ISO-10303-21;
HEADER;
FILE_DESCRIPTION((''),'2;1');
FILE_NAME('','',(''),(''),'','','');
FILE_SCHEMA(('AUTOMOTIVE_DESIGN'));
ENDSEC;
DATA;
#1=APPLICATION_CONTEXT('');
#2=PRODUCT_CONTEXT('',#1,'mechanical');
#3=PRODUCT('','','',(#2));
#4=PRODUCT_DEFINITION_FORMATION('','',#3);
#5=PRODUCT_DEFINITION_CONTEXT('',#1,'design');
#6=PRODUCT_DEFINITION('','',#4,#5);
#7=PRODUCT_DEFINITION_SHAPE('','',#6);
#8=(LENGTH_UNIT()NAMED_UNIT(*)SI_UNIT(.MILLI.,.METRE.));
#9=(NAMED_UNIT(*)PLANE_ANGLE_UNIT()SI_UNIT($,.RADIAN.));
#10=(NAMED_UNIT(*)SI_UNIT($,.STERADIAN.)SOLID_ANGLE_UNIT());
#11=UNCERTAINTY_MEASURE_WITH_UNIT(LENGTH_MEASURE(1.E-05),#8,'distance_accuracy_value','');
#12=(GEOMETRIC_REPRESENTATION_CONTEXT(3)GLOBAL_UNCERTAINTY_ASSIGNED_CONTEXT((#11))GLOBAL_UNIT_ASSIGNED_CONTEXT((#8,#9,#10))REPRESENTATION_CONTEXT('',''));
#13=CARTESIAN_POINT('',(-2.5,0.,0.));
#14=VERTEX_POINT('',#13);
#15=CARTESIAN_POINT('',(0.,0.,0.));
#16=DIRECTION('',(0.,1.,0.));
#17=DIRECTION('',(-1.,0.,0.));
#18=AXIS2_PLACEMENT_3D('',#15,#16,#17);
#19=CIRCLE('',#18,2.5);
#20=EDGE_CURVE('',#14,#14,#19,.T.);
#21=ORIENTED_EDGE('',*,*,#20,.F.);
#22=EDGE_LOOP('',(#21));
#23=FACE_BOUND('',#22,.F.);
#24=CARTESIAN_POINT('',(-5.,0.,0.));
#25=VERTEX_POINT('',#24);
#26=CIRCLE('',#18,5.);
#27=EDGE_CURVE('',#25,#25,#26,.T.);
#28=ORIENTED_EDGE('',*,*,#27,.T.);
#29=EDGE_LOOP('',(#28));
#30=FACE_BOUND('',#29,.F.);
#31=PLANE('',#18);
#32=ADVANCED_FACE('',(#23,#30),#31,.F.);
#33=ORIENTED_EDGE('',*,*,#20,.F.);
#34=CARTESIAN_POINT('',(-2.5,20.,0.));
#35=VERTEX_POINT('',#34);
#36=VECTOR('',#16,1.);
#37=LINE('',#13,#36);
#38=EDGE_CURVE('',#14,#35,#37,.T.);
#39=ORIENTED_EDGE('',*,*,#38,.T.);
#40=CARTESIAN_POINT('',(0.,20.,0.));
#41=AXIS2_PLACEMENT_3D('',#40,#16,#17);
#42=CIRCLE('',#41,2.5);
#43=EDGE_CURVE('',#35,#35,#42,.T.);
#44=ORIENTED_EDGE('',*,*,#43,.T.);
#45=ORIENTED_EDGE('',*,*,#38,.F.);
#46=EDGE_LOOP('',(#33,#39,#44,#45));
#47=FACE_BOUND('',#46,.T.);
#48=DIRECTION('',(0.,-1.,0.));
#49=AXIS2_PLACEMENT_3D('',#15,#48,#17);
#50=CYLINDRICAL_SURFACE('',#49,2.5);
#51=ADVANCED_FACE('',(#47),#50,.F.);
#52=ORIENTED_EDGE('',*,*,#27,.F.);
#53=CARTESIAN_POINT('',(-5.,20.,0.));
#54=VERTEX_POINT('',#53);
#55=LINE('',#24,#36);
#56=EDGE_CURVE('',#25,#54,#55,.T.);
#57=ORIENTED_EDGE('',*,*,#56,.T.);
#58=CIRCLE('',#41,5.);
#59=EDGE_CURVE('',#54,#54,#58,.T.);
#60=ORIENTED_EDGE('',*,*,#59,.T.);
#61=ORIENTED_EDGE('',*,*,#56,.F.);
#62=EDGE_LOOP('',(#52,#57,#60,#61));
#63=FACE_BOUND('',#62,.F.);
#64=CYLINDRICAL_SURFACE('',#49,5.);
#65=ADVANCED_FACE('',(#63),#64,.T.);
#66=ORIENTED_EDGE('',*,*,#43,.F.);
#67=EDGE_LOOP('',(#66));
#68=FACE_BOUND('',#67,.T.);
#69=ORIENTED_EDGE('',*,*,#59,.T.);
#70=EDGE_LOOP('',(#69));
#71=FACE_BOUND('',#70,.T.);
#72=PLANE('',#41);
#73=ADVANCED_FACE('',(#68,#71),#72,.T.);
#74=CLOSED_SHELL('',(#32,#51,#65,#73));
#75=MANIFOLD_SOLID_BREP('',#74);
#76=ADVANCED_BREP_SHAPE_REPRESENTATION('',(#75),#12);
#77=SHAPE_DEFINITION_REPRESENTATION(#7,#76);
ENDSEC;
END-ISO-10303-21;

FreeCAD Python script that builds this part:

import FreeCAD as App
import Part
import Sketcher
from FreeCAD import Vector

doc = App.newDocument("Part")
params = doc.addObject("Spreadsheet::Sheet", "Params")
for row, (alias, value) in enumerate([
    ("sketch1_diameter", "10 mm"),
    ("sketch1_diameter2", "5 mm"),
    ("pad1_length", "20 mm"),
], start=1):
    params.set(f"A{row}", alias)
    params.set(f"B{row}", "=" + value)
    params.setAlias(f"B{row}", alias)

body = doc.addObject("PartDesign::Body", "Body")

sketch1 = body.newObject("Sketcher::SketchObject", "Sketch")
sketch1.AttachmentSupport = (doc.getObject("XZ_Plane"), [""])
sketch1.MapMode = "FlatFace"
sketch1.addGeometry([
    Part.Circle(Vector(0, 0, 0), Vector(0, 0, 1), 5),
    Part.Circle(Vector(0, 0, 0), Vector(0, 0, 1), 2.5),
], False)
sketch1.addConstraint([
    Sketcher.Constraint("Coincident", 0, 3, -1, 1),
    Sketcher.Constraint("Coincident", 1, 3, -1, 1),
    Sketcher.Constraint("Diameter", 0, 10.0),
    Sketcher.Constraint("Diameter", 1, 5.0),
])
sketch1.setExpression("Constraints[2]", "Params.sketch1_diameter")
sketch1.setExpression("Constraints[3]", "Params.sketch1_diameter2")
pad1 = body.newObject("PartDesign::Pad", "Pad")
pad1.Profile = sketch1
pad1.setExpression("Length", "Params.pad1_length")
pad1.Reversed = True

doc.recompute()
